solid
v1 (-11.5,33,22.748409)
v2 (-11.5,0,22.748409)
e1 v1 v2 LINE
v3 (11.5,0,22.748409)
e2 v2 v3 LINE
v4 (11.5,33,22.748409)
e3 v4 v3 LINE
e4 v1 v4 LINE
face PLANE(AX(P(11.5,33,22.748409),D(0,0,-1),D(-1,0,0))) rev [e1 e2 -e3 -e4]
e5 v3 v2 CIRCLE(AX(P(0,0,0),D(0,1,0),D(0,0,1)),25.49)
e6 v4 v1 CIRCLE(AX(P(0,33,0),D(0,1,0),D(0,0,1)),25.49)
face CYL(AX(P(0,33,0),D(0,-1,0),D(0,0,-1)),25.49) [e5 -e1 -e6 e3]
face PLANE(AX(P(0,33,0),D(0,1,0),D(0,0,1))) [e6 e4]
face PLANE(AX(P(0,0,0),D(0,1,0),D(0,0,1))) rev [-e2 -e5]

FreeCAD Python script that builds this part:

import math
import FreeCAD as App
import Part
import Sketcher
from FreeCAD import Vector
Q = App.Units.Quantity

doc = App.newDocument("Part")
body = doc.addObject("PartDesign::Body", "Body")

# Sketch on XZ plane
sketch1 = body.newObject("Sketcher::SketchObject", "Sketch")
sketch1.AttachmentSupport = (doc.getObject("XZ_Plane"), [""])
sketch1.MapMode = "FlatFace"
sketch1.addGeometry(Part.LineSegment(Vector(-12, 23, 0), Vector(12, 23, 0)), False)
sketch1.addGeometry(Part.ArcOfCircle(Part.Circle(Vector(0, 0, 0), Vector(0, 0, 1), 25), math.radians(117), math.radians(423)), False)
sketch1.addConstraint(Sketcher.Constraint("Coincident", 0, 1, 1, 1))
sketch1.addConstraint(Sketcher.Constraint("Coincident", 1, 2, 0, 2))
sketch1.addConstraint(Sketcher.Constraint("Horizontal", 0))
sketch1.addConstraint(Sketcher.Constraint("Coincident", 1, 3, -1, 1))
sketch1.addConstraint(Sketcher.Constraint("DistanceX", 0, 1, 0, 2, Q("23 mm")))
sketch1.addConstraint(Sketcher.Constraint("Radius", 1, Q("25.49 mm")))
pad1 = body.newObject("PartDesign::Pad", "Pad")
pad1.Profile = sketch1
pad1.Length = 33
pad1.Reversed = True

doc.recompute()
